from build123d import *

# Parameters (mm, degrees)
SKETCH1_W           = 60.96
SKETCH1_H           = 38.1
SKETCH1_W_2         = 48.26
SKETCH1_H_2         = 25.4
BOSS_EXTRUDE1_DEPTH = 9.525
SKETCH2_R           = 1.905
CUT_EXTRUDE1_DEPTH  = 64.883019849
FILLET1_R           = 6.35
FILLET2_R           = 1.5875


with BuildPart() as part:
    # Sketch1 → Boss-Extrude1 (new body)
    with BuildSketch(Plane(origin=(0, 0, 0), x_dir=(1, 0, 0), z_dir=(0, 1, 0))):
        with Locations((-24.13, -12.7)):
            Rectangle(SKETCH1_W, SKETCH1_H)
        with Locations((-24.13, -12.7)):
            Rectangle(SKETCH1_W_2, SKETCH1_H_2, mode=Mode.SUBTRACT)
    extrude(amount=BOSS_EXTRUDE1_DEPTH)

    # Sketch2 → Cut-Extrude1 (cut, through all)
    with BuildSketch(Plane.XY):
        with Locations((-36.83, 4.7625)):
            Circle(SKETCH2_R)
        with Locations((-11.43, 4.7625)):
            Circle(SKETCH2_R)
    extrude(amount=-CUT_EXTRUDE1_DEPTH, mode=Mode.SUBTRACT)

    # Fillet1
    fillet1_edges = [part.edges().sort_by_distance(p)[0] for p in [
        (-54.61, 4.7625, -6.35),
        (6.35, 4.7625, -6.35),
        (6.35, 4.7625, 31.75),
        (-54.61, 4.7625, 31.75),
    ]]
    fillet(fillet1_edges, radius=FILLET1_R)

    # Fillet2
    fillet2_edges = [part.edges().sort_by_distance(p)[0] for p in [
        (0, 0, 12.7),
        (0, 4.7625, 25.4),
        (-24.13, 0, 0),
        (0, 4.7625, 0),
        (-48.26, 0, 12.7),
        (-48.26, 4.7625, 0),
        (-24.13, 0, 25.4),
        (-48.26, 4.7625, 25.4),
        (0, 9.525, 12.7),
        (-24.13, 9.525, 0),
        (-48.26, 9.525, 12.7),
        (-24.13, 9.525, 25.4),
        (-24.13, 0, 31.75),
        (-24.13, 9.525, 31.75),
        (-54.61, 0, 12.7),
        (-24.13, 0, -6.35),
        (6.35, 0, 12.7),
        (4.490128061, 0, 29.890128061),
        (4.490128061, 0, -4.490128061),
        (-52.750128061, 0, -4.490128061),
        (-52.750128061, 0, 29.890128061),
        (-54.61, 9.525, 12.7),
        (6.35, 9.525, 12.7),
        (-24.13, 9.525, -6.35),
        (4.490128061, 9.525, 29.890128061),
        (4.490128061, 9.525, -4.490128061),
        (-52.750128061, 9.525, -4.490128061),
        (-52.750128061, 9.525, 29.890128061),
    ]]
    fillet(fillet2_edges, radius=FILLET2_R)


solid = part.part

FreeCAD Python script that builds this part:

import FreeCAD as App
import Part
import Sketcher
Q = App.Units.Quantity


def edges_at(feature, points):
    """Names of the edges that pass closest to the given points."""
    edges = feature.Shape.Edges
    near = lambda p: min(range(len(edges)), key=lambda i: edges[i].distToShape(Part.Vertex(*p))[0])
    return sorted({f"Edge{near(p) + 1}" for p in points})

doc = App.newDocument("Part")
body = doc.addObject("PartDesign::Body", "Body")

sketch1 = body.newObject("Sketcher::SketchObject", "Sketch")
sketch1.AttachmentSupport = (doc.getObject("XZ_Plane"), [""])
sketch1.MapMode = "FlatFace"
sketch1.addGeometry(Part.LineSegment(App.Vector(-55, -6, 0), App.Vector(-55, 32, 0)), False)
sketch1.addGeometry(Part.LineSegment(App.Vector(-55, 32, 0), App.Vector(6, 32, 0)), False)
sketch1.addGeometry(Part.LineSegment(App.Vector(6, 32, 0), App.Vector(6, -6, 0)), False)
sketch1.addGeometry(Part.LineSegment(App.Vector(6, -6, 0), App.Vector(-55, -6, 0)), False)
sketch1.addGeometry(Part.LineSegment(App.Vector(0, 25, 0), App.Vector(-48, 25, 0)), False)
sketch1.addGeometry(Part.LineSegment(App.Vector(-48, 25, 0), App.Vector(-48, 0, 0)), False)
sketch1.addGeometry(Part.LineSegment(App.Vector(-48, 0, 0), App.Vector(0, 0, 0)), False)
sketch1.addGeometry(Part.LineSegment(App.Vector(0, 0, 0), App.Vector(0, 25, 0)), False)
sketch1.addConstraint(Sketcher.Constraint("Coincident", 0, 2, 1, 1))
sketch1.addConstraint(Sketcher.Constraint("Coincident", 1, 2, 2, 1))
sketch1.addConstraint(Sketcher.Constraint("Coincident", 2, 2, 3, 1))
sketch1.addConstraint(Sketcher.Constraint("Coincident", 3, 2, 0, 1))
sketch1.addConstraint(Sketcher.Constraint("Coincident", 4, 2, 5, 1))
sketch1.addConstraint(Sketcher.Constraint("Coincident", 5, 2, 6, 1))
sketch1.addConstraint(Sketcher.Constraint("Coincident", 6, 2, 7, 1))
sketch1.addConstraint(Sketcher.Constraint("Coincident", 7, 2, 4, 1))
sketch1.addConstraint(Sketcher.Constraint("Vertical", 0))
sketch1.addConstraint(Sketcher.Constraint("Horizontal", 1))
sketch1.addConstraint(Sketcher.Constraint("Vertical", 2))
sketch1.addConstraint(Sketcher.Constraint("Horizontal", 3))
sketch1.addConstraint(Sketcher.Constraint("Horizontal", 4))
sketch1.addConstraint(Sketcher.Constraint("Vertical", 5))
sketch1.addConstraint(Sketcher.Constraint("Horizontal", 6))
sketch1.addConstraint(Sketcher.Constraint("Vertical", 7))
sketch1.addConstraint(Sketcher.Constraint("Coincident", 6, 2, -1, 1))
sketch1.addConstraint(Sketcher.Constraint("DistanceY", 5, 2, 5, 1, Q("1 in")))
sketch1.addConstraint(Sketcher.Constraint("DistanceX", 1, 1, 1, 2, Q("2.4 in")))
sketch1.addConstraint(Sketcher.Constraint("DistanceX", 4, 2, 4, 1, Q("1.9 in")))
sketch1.addConstraint(Sketcher.Constraint("DistanceY", 0, 1, 0, 2, Q("1.5 in")))
sketch1.addConstraint(Sketcher.Constraint("DistanceX", 0, 2, -1, 1, Q("2.15 in")))
sketch1.addConstraint(Sketcher.Constraint("DistanceY", -1, 1, 0, 2, Q("1.25 in")))
pad1 = body.newObject("PartDesign::Pad", "Pad")
pad1.Profile = sketch1
pad1.Length = Q("0.375 in")
pad1.Reversed = True

sketch2 = body.newObject("Sketcher::SketchObject", "Sketch001")
sketch2.AttachmentSupport = (doc.getObject("XY_Plane"), [""])
sketch2.MapMode = "FlatFace"
sketch2.addGeometry(Part.Circle(App.Vector(-36.8, 4.8, 0), App.Vector(0, 0, 1), 1.9), False)
sketch2.addGeometry(Part.Circle(App.Vector(-11.4, 4.8, 0), App.Vector(0, 0, 1), 1.9), False)
sketch2.addConstraint(Sketcher.Constraint("Equal", 0, 1))
sketch2.addConstraint(Sketcher.Constraint("Horizontal", 0, 3, 1, 3))
sketch2.addConstraint(Sketcher.Constraint("Diameter", 0, Q("0.15 in")))
sketch2.addConstraint(Sketcher.Constraint("DistanceX", 0, 3, 1, 3, Q("1 in")))
sketch2.addConstraint(Sketcher.Constraint("DistanceX", 0, 3, -1, 1, Q("1.45 in")))
sketch2.addConstraint(Sketcher.Constraint("DistanceY", -1, 1, 0, 3, Q("0.1875 in")))
pocket1 = body.newObject("PartDesign::Pocket", "Pocket")
pocket1.Profile = sketch2
pocket1.Type = "ThroughAll"
doc.recompute()

fillet = body.newObject("PartDesign::Fillet", "Fillet")
fillet.Base = (pocket1, edges_at(pocket1, [
    (-54.61, 4.763, -6.35),
    (6.35, 4.763, -6.35),
    (6.35, 4.763, 31.75),
    (-54.61, 4.763, 31.75),
]))
fillet.Radius = Q("0.25 in")
doc.recompute()

fillet2 = body.newObject("PartDesign::Fillet", "Fillet001")
fillet2.Base = (fillet, edges_at(fillet, [
    (0, 0, 12.7),
    (0, 4.763, 25.4),
    (-24.13, 0, 0),
    (0, 4.763, 0),
    (-48.26, 0, 12.7),
    (-48.26, 4.763, 0),
    (-24.13, 0, 25.4),
    (-48.26, 4.763, 25.4),
    (0, 9.525, 12.7),
    (-24.13, 9.525, 0),
    (-48.26, 9.525, 12.7),
    (-24.13, 9.525, 25.4),
    (-24.13, 0, 31.75),
    (-24.13, 9.525, 31.75),
    (-54.61, 0, 12.7),
    (-24.13, 0, -6.35),
    (6.35, 0, 12.7),
    (4.49, 0, 29.89),
    (4.49, 0, -4.49),
    (-52.75, 0, -4.49),
    (-52.75, 0, 29.89),
    (-54.61, 9.525, 12.7),
    (6.35, 9.525, 12.7),
    (-24.13, 9.525, -6.35),
    (4.49, 9.525, 29.89),
    (4.49, 9.525, -4.49),
    (-52.75, 9.525, -4.49),
    (-52.75, 9.525, 29.89),
]))
fillet2.Radius = Q("0.0625 in")

doc.recompute()
